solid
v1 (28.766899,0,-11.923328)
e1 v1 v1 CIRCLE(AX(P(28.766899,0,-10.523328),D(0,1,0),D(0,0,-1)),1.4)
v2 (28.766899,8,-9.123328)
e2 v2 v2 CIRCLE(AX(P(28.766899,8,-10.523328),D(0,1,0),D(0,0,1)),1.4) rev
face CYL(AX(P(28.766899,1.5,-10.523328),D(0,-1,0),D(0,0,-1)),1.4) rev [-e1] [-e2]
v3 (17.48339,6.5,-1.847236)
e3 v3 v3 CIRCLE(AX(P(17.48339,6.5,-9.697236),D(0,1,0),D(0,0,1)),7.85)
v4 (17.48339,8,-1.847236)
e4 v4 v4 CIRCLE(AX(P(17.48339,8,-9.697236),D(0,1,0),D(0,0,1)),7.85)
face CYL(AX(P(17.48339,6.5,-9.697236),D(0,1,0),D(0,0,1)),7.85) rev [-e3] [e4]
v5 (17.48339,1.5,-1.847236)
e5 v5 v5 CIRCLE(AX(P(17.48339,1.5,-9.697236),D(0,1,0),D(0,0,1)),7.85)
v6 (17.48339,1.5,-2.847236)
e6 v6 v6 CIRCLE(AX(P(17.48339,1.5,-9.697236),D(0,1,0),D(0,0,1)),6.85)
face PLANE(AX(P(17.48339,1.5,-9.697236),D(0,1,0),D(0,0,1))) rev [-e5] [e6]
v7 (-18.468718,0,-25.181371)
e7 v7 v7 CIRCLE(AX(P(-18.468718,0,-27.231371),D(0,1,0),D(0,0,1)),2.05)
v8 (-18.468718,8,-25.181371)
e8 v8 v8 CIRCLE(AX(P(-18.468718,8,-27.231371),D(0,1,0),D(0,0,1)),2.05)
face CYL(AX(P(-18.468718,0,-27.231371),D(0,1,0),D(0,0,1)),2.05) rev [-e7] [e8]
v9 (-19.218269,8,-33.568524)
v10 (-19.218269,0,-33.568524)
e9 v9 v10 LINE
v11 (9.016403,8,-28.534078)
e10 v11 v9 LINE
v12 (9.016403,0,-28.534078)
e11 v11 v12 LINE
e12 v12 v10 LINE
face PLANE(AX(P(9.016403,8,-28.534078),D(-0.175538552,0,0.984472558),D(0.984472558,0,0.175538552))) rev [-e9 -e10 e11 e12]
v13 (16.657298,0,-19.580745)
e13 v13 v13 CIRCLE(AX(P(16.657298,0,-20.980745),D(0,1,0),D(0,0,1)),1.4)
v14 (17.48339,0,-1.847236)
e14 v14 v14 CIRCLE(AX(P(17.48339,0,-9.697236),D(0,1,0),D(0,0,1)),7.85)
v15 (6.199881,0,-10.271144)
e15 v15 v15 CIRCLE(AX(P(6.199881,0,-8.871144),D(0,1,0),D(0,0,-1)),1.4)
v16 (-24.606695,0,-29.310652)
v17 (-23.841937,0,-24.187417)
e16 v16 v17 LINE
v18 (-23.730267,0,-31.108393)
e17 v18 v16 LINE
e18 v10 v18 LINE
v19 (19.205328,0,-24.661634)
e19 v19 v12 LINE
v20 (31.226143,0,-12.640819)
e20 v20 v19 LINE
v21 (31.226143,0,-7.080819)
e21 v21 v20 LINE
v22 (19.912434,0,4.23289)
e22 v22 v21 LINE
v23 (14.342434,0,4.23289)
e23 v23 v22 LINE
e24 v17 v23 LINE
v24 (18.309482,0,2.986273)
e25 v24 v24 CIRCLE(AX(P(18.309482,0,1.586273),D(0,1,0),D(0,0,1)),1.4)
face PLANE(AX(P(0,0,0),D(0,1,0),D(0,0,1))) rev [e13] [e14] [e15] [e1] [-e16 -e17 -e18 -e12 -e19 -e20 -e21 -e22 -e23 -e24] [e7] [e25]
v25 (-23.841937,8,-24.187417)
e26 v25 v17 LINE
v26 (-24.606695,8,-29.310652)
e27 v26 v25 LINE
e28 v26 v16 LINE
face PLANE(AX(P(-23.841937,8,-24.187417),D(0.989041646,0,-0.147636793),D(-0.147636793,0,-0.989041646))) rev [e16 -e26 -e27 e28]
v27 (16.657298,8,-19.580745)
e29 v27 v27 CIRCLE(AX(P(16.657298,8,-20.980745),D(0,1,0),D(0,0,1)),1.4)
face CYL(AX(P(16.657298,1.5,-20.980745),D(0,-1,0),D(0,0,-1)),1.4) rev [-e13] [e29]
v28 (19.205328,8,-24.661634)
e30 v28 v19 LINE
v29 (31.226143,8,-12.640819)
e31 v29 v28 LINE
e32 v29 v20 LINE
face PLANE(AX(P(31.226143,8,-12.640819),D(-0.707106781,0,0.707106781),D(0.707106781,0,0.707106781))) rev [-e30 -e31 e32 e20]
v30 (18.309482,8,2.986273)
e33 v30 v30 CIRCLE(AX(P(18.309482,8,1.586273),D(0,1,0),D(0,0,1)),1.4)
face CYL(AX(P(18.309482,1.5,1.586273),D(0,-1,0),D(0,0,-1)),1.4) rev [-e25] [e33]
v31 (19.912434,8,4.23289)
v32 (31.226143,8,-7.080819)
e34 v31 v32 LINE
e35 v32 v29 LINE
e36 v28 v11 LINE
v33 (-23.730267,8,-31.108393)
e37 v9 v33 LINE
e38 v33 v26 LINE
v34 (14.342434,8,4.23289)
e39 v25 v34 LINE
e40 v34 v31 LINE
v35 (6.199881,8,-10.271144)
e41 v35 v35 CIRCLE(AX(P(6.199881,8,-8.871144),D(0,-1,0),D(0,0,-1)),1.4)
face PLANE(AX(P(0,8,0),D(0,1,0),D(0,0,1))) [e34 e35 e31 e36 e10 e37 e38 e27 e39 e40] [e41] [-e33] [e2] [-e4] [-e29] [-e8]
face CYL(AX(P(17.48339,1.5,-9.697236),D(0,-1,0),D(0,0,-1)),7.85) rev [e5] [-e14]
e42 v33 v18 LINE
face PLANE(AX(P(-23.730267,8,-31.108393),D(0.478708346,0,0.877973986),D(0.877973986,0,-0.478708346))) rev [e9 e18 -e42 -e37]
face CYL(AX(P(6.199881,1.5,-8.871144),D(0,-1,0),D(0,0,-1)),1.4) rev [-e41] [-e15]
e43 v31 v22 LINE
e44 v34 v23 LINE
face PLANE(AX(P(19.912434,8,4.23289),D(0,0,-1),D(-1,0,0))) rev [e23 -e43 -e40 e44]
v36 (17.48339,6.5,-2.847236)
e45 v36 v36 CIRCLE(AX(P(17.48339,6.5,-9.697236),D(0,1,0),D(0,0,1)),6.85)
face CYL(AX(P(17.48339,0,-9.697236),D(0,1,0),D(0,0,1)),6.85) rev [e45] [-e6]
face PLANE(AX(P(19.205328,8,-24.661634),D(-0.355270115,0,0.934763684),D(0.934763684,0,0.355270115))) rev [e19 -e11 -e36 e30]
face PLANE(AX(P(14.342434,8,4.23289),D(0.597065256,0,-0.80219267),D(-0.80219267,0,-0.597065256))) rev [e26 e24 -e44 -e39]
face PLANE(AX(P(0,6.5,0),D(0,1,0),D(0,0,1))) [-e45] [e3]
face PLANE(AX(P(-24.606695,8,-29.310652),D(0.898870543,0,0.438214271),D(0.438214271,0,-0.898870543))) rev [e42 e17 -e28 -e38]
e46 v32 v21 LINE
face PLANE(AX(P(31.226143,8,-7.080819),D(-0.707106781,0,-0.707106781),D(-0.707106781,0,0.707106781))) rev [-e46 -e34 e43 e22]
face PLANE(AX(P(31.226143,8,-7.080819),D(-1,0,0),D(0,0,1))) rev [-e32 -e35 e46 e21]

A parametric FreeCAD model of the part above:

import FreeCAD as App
import Part
import Sketcher
from FreeCAD import Vector
Q = App.Units.Quantity

doc = App.newDocument("Part")
body = doc.addObject("PartDesign::Body", "Body")

sketch1 = body.newObject("Sketcher::SketchObject", "Sketch")
sketch1.AttachmentSupport = (doc.getObject("XZ_Plane"), [""])
sketch1.MapMode = "FlatFace"
sketch1.addGeometry(Part.LineSegment(Vector(19.9, 4.2, 0), Vector(31.2, -7.1, 0)), False)
sketch1.addGeometry(Part.LineSegment(Vector(31.2, -7.1, 0), Vector(31.2, -12.6, 0)), False)
sketch1.addGeometry(Part.LineSegment(Vector(31.2, -12.6, 0), Vector(19.2, -24.7, 0)), False)
sketch1.addGeometry(Part.LineSegment(Vector(19.2, -24.7, 0), Vector(9, -28.5, 0)), False)
sketch1.addGeometry(Part.LineSegment(Vector(9, -28.5, 0), Vector(-19.2, -33.6, 0)), False)
sketch1.addGeometry(Part.LineSegment(Vector(-19.2, -33.6, 0), Vector(-23.7, -31.1, 0)), False)
sketch1.addGeometry(Part.LineSegment(Vector(-23.7, -31.1, 0), Vector(-24.6, -29.3, 0)), False)
sketch1.addGeometry(Part.LineSegment(Vector(-24.6, -29.3, 0), Vector(-23.8, -24.2, 0)), False)
sketch1.addGeometry(Part.LineSegment(Vector(-23.8, -24.2, 0), Vector(14.3, 4.2, 0)), False)
sketch1.addGeometry(Part.LineSegment(Vector(14.3, 4.2, 0), Vector(19.9, 4.2, 0)), False)
sketch1.addConstraint(Sketcher.Constraint("Coincident", 0, 2, 1, 1))
sketch1.addConstraint(Sketcher.Constraint("Coincident", 1, 2, 2, 1))
sketch1.addConstraint(Sketcher.Constraint("Coincident", 2, 2, 3, 1))
sketch1.addConstraint(Sketcher.Constraint("Coincident", 3, 2, 4, 1))
sketch1.addConstraint(Sketcher.Constraint("Coincident", 4, 2, 5, 1))
sketch1.addConstraint(Sketcher.Constraint("Coincident", 5, 2, 6, 1))
sketch1.addConstraint(Sketcher.Constraint("Coincident", 6, 2, 7, 1))
sketch1.addConstraint(Sketcher.Constraint("Coincident", 7, 2, 8, 1))
sketch1.addConstraint(Sketcher.Constraint("Coincident", 8, 2, 9, 1))
sketch1.addConstraint(Sketcher.Constraint("Coincident", 9, 2, 0, 1))
sketch1.addConstraint(Sketcher.Constraint("Vertical", 1))
sketch1.addConstraint(Sketcher.Constraint("Horizontal", 9))
sketch1.addConstraint(Sketcher.Constraint("Perpendicular", 0, 2))
sketch1.addConstraint(Sketcher.Constraint("Angle", 0, Q("-45 deg")))
sketch1.addConstraint(Sketcher.Constraint("Distance", 0, Q("16 mm")))
sketch1.addConstraint(Sketcher.Constraint("Distance", 2, Q("17 mm")))
sketch1.addConstraint(Sketcher.Constraint("Distance", 6, Q("2 mm")))
sketch1.addConstraint(Sketcher.Constraint("Distance", 3, Q("10.9 mm")))
sketch1.addConstraint(Sketcher.Constraint("Distance", 8, Q("47.6 mm")))
sketch1.addConstraint(Sketcher.Constraint("DistanceX", 9, 1, 9, 2, Q("5.57 mm")))
sketch1.addConstraint(Sketcher.Constraint("DistanceY", 1, 2, 1, 1, Q("5.56 mm")))
sketch1.addConstraint(Sketcher.Constraint("Angle", 3, Q("-159.19 deg")))
sketch1.addConstraint(Sketcher.Constraint("Angle", 4, Q("-169.89 deg")))
sketch1.addConstraint(Sketcher.Constraint("Angle", 6, Q("115.99 deg")))
sketch1.addConstraint(Sketcher.Constraint("Angle", 7, Q("81.51 deg")))
sketch1.addConstraint(Sketcher.Constraint("Angle", 8, Q("36.66 deg")))
sketch1.addConstraint(Sketcher.Constraint("Distance", 4, Q("28.68 mm")))
sketch1.addConstraint(Sketcher.Constraint("Distance", 7, Q("5.18 mm")))
sketch1.addConstraint(Sketcher.Constraint("DistanceY", 0, 2, -1, 1, Q("7.080819 mm")))
sketch1.addConstraint(Sketcher.Constraint("DistanceX", 4, 2, -1, 1, Q("19.218269 mm")))
pad1 = body.newObject("PartDesign::Pad", "Pad")
pad1.Profile = sketch1
pad1.Length = 8
pad1.Reversed = True

sketch2 = body.newObject("Sketcher::SketchObject", "Sketch001")
sketch2.AttachmentSupport = (doc.getObject("XZ_Plane"), [""])
sketch2.MapMode = "FlatFace"
sketch2.AttachmentOffset = App.Placement(Vector(0, 0, -8), App.Rotation())
sketch2.addGeometry(Part.Circle(Vector(17.5, -9.7, 0), Vector(0, 0, 1), 6.8), False)
sketch2.addGeometry(Part.Circle(Vector(-18.5, -27.2, 0), Vector(0, 0, 1), 2), False)
sketch2.addConstraint(Sketcher.Constraint("Diameter", 0, Q("13.7 mm")))
sketch2.addConstraint(Sketcher.Constraint("Diameter", 1, Q("4.1 mm")))
sketch2.addConstraint(Sketcher.Constraint("DistanceX", -1, 1, 0, 3, Q("17.48339 mm")))
sketch2.addConstraint(Sketcher.Constraint("DistanceX", 1, 3, -1, 1, Q("18.468718 mm")))
sketch2.addConstraint(Sketcher.Constraint("DistanceY", 1, 3, -1, 1, Q("27.231371 mm")))
sketch2.addConstraint(Sketcher.Constraint("DistanceY", 0, 3, -1, 1, Q("9.697236 mm")))
pocket1 = body.newObject("PartDesign::Pocket", "Pocket")
pocket1.Profile = sketch2
pocket1.Length = 8
pocket1.Reversed = True

sketch3 = body.newObject("Sketcher::SketchObject", "Sketch002")
sketch3.AttachmentSupport = (doc.getObject("XZ_Plane"), [""])
sketch3.MapMode = "FlatFace"
sketch3.AttachmentOffset = App.Placement(Vector(0, 0, -8), App.Rotation())
sketch3.addGeometry(Part.Circle(Vector(17, -10, 0), Vector(0, 0, 1), 8), False)
sketch3.addGeometry(Part.Circle(Vector(17, -10, 0), Vector(0, 0, 1), 7), False)
sketch3.addConstraint(Sketcher.Constraint("Coincident", 1, 3, 0, 3))
sketch3.addConstraint(Sketcher.Constraint("Diameter", 0, Q("15.7 mm")))
sketch3.addConstraint(Sketcher.Constraint("Diameter", 1, Q("13.7 mm")))
sketch3.addConstraint(Sketcher.Constraint("DistanceX", -1, 1, 0, 3, Q("17.48339 mm")))
sketch3.addConstraint(Sketcher.Constraint("DistanceY", 0, 3, -1, 1, Q("9.697236 mm")))
pocket2 = body.newObject("PartDesign::Pocket", "Pocket001")
pocket2.Profile = sketch3
pocket2.Length = 1.5
pocket2.Reversed = True

sketch4 = body.newObject("Sketcher::SketchObject", "Sketch003")
sketch4.AttachmentSupport = (doc.getObject("XZ_Plane"), [""])
sketch4.MapMode = "FlatFace"
sketch4.AttachmentOffset = App.Placement(Vector(0, 0, -1.5), App.Rotation())
sketch4.addGeometry(Part.Circle(Vector(17.5, -9.7, 0), Vector(0, 0, 1), 7.8), False)
sketch4.addGeometry(Part.Circle(Vector(17.5, -9.7, 0), Vector(0, 0, 1), 6.8), False)
sketch4.addGeometry(Part.Circle(Vector(-18.5, -27.2, 0), Vector(0, 0, 1), 2), False)
sketch4.addGeometry(Part.Circle(Vector(16.7, -21, 0), Vector(0, 0, 1), 1.4), False)
sketch4.addGeometry(Part.Circle(Vector(28.8, -10.5, 0), Vector(0, 0, 1), 1.4), False)
sketch4.addGeometry(Part.Circle(Vector(6.2, -8.9, 0), Vector(0, 0, 1), 1.4), False)
sketch4.addGeometry(Part.Circle(Vector(18.3, 1.6, 0), Vector(0, 0, 1), 1.4), False)
sketch4.addConstraint(Sketcher.Constraint("Coincident", 1, 3, 0, 3))
sketch4.addConstraint(Sketcher.Constraint("Equal", 3, 4))
sketch4.addConstraint(Sketcher.Constraint("Equal", 4, 5))
sketch4.addConstraint(Sketcher.Constraint("Equal", 5, 6))
sketch4.addConstraint(Sketcher.Constraint("Diameter", 0, Q("15.7 mm")))
sketch4.addConstraint(Sketcher.Constraint("Diameter", 1, Q("13.7 mm")))
sketch4.addConstraint(Sketcher.Constraint("Diameter", 2, Q("4.1 mm")))
sketch4.addConstraint(Sketcher.Constraint("Diameter", 3, Q("2.8 mm")))
sketch4.addConstraint(Sketcher.Constraint("DistanceX", -1, 1, 3, 3, Q("16.657298 mm")))
sketch4.addConstraint(Sketcher.Constraint("DistanceX", -1, 1, 4, 3, Q("28.766899 mm")))
sketch4.addConstraint(Sketcher.Constraint("DistanceY", 3, 3, 5, 3, Q("12.109601 mm")))
sketch4.addConstraint(Sketcher.Constraint("DistanceX", 2, 3, 5, 3, Q("24.6686 mm")))
sketch4.addConstraint(Sketcher.Constraint("DistanceY", 4, 3, 6, 3, Q("12.109601 mm")))
sketch4.addConstraint(Sketcher.Constraint("DistanceX", 5, 3, 6, 3, Q("12.109601 mm")))
sketch4.addConstraint(Sketcher.Constraint("DistanceX", -1, 1, 0, 3, Q("17.48339 mm")))
sketch4.addConstraint(Sketcher.Constraint("DistanceX", 2, 3, -1, 1, Q("18.468718 mm")))
sketch4.addConstraint(Sketcher.Constraint("DistanceY", 2, 3, -1, 1, Q("27.231371 mm")))
sketch4.addConstraint(Sketcher.Constraint("DistanceY", 3, 3, 0, 3, Q("11.283509 mm")))
sketch4.addConstraint(Sketcher.Constraint("DistanceY", 4, 3, 0, 3, Q("0.826092 mm")))
sketch4.addConstraint(Sketcher.Constraint("DistanceY", 0, 3, -1, 1, Q("9.697236 mm")))
pocket3 = body.newObject("PartDesign::Pocket", "Pocket002")
pocket3.Profile = sketch4
pocket3.Length = 1.5
pocket3.Reversed = True

sketch5 = body.newObject("Sketcher::SketchObject", "Sketch004")
sketch5.AttachmentSupport = (doc.getObject("XZ_Plane"), [""])
sketch5.MapMode = "FlatFace"
sketch5.AttachmentOffset = App.Placement(Vector(0, 0, -8), App.Rotation())
sketch5.addGeometry(Part.Circle(Vector(16.7, -21, 0), Vector(0, 0, 1), 1.4), False)
sketch5.addGeometry(Part.Circle(Vector(28.8, -10.5, 0), Vector(0, 0, 1), 1.4), False)
sketch5.addGeometry(Part.Circle(Vector(18.3, 1.6, 0), Vector(0, 0, 1), 1.4), False)
sketch5.addGeometry(Part.Circle(Vector(6.2, -8.9, 0), Vector(0, 0, 1), 1.4), False)
sketch5.addConstraint(Sketcher.Constraint("Equal", 0, 1))
sketch5.addConstraint(Sketcher.Constraint("Equal", 1, 2))
sketch5.addConstraint(Sketcher.Constraint("Equal", 2, 3))
sketch5.addConstraint(Sketcher.Constraint("Diameter", 0, Q("2.8 mm")))
sketch5.addConstraint(Sketcher.Constraint("DistanceX", -1, 1, 0, 3, Q("16.657298 mm")))
sketch5.addConstraint(Sketcher.Constraint("DistanceX", -1, 1, 1, 3, Q("28.766899 mm")))
sketch5.addConstraint(Sketcher.Constraint("DistanceY", 1, 3, 2, 3, Q("12.109601 mm")))
sketch5.addConstraint(Sketcher.Constraint("DistanceY", 0, 3, 3, 3, Q("12.109601 mm")))
sketch5.addConstraint(Sketcher.Constraint("DistanceX", 3, 3, 2, 3, Q("12.109601 mm")))
sketch5.addConstraint(Sketcher.Constraint("DistanceX", -1, 1, 2, 3, Q("18.309482 mm")))
sketch5.addConstraint(Sketcher.Constraint("DistanceY", 0, 3, -1, 1, Q("20.980745 mm")))
sketch5.addConstraint(Sketcher.Constraint("DistanceY", 1, 3, -1, 1, Q("10.523328 mm")))
pocket4 = body.newObject("PartDesign::Pocket", "Pocket003")
pocket4.Profile = sketch5
pocket4.Length = 10
pocket4.Reversed = True

doc.recompute()
